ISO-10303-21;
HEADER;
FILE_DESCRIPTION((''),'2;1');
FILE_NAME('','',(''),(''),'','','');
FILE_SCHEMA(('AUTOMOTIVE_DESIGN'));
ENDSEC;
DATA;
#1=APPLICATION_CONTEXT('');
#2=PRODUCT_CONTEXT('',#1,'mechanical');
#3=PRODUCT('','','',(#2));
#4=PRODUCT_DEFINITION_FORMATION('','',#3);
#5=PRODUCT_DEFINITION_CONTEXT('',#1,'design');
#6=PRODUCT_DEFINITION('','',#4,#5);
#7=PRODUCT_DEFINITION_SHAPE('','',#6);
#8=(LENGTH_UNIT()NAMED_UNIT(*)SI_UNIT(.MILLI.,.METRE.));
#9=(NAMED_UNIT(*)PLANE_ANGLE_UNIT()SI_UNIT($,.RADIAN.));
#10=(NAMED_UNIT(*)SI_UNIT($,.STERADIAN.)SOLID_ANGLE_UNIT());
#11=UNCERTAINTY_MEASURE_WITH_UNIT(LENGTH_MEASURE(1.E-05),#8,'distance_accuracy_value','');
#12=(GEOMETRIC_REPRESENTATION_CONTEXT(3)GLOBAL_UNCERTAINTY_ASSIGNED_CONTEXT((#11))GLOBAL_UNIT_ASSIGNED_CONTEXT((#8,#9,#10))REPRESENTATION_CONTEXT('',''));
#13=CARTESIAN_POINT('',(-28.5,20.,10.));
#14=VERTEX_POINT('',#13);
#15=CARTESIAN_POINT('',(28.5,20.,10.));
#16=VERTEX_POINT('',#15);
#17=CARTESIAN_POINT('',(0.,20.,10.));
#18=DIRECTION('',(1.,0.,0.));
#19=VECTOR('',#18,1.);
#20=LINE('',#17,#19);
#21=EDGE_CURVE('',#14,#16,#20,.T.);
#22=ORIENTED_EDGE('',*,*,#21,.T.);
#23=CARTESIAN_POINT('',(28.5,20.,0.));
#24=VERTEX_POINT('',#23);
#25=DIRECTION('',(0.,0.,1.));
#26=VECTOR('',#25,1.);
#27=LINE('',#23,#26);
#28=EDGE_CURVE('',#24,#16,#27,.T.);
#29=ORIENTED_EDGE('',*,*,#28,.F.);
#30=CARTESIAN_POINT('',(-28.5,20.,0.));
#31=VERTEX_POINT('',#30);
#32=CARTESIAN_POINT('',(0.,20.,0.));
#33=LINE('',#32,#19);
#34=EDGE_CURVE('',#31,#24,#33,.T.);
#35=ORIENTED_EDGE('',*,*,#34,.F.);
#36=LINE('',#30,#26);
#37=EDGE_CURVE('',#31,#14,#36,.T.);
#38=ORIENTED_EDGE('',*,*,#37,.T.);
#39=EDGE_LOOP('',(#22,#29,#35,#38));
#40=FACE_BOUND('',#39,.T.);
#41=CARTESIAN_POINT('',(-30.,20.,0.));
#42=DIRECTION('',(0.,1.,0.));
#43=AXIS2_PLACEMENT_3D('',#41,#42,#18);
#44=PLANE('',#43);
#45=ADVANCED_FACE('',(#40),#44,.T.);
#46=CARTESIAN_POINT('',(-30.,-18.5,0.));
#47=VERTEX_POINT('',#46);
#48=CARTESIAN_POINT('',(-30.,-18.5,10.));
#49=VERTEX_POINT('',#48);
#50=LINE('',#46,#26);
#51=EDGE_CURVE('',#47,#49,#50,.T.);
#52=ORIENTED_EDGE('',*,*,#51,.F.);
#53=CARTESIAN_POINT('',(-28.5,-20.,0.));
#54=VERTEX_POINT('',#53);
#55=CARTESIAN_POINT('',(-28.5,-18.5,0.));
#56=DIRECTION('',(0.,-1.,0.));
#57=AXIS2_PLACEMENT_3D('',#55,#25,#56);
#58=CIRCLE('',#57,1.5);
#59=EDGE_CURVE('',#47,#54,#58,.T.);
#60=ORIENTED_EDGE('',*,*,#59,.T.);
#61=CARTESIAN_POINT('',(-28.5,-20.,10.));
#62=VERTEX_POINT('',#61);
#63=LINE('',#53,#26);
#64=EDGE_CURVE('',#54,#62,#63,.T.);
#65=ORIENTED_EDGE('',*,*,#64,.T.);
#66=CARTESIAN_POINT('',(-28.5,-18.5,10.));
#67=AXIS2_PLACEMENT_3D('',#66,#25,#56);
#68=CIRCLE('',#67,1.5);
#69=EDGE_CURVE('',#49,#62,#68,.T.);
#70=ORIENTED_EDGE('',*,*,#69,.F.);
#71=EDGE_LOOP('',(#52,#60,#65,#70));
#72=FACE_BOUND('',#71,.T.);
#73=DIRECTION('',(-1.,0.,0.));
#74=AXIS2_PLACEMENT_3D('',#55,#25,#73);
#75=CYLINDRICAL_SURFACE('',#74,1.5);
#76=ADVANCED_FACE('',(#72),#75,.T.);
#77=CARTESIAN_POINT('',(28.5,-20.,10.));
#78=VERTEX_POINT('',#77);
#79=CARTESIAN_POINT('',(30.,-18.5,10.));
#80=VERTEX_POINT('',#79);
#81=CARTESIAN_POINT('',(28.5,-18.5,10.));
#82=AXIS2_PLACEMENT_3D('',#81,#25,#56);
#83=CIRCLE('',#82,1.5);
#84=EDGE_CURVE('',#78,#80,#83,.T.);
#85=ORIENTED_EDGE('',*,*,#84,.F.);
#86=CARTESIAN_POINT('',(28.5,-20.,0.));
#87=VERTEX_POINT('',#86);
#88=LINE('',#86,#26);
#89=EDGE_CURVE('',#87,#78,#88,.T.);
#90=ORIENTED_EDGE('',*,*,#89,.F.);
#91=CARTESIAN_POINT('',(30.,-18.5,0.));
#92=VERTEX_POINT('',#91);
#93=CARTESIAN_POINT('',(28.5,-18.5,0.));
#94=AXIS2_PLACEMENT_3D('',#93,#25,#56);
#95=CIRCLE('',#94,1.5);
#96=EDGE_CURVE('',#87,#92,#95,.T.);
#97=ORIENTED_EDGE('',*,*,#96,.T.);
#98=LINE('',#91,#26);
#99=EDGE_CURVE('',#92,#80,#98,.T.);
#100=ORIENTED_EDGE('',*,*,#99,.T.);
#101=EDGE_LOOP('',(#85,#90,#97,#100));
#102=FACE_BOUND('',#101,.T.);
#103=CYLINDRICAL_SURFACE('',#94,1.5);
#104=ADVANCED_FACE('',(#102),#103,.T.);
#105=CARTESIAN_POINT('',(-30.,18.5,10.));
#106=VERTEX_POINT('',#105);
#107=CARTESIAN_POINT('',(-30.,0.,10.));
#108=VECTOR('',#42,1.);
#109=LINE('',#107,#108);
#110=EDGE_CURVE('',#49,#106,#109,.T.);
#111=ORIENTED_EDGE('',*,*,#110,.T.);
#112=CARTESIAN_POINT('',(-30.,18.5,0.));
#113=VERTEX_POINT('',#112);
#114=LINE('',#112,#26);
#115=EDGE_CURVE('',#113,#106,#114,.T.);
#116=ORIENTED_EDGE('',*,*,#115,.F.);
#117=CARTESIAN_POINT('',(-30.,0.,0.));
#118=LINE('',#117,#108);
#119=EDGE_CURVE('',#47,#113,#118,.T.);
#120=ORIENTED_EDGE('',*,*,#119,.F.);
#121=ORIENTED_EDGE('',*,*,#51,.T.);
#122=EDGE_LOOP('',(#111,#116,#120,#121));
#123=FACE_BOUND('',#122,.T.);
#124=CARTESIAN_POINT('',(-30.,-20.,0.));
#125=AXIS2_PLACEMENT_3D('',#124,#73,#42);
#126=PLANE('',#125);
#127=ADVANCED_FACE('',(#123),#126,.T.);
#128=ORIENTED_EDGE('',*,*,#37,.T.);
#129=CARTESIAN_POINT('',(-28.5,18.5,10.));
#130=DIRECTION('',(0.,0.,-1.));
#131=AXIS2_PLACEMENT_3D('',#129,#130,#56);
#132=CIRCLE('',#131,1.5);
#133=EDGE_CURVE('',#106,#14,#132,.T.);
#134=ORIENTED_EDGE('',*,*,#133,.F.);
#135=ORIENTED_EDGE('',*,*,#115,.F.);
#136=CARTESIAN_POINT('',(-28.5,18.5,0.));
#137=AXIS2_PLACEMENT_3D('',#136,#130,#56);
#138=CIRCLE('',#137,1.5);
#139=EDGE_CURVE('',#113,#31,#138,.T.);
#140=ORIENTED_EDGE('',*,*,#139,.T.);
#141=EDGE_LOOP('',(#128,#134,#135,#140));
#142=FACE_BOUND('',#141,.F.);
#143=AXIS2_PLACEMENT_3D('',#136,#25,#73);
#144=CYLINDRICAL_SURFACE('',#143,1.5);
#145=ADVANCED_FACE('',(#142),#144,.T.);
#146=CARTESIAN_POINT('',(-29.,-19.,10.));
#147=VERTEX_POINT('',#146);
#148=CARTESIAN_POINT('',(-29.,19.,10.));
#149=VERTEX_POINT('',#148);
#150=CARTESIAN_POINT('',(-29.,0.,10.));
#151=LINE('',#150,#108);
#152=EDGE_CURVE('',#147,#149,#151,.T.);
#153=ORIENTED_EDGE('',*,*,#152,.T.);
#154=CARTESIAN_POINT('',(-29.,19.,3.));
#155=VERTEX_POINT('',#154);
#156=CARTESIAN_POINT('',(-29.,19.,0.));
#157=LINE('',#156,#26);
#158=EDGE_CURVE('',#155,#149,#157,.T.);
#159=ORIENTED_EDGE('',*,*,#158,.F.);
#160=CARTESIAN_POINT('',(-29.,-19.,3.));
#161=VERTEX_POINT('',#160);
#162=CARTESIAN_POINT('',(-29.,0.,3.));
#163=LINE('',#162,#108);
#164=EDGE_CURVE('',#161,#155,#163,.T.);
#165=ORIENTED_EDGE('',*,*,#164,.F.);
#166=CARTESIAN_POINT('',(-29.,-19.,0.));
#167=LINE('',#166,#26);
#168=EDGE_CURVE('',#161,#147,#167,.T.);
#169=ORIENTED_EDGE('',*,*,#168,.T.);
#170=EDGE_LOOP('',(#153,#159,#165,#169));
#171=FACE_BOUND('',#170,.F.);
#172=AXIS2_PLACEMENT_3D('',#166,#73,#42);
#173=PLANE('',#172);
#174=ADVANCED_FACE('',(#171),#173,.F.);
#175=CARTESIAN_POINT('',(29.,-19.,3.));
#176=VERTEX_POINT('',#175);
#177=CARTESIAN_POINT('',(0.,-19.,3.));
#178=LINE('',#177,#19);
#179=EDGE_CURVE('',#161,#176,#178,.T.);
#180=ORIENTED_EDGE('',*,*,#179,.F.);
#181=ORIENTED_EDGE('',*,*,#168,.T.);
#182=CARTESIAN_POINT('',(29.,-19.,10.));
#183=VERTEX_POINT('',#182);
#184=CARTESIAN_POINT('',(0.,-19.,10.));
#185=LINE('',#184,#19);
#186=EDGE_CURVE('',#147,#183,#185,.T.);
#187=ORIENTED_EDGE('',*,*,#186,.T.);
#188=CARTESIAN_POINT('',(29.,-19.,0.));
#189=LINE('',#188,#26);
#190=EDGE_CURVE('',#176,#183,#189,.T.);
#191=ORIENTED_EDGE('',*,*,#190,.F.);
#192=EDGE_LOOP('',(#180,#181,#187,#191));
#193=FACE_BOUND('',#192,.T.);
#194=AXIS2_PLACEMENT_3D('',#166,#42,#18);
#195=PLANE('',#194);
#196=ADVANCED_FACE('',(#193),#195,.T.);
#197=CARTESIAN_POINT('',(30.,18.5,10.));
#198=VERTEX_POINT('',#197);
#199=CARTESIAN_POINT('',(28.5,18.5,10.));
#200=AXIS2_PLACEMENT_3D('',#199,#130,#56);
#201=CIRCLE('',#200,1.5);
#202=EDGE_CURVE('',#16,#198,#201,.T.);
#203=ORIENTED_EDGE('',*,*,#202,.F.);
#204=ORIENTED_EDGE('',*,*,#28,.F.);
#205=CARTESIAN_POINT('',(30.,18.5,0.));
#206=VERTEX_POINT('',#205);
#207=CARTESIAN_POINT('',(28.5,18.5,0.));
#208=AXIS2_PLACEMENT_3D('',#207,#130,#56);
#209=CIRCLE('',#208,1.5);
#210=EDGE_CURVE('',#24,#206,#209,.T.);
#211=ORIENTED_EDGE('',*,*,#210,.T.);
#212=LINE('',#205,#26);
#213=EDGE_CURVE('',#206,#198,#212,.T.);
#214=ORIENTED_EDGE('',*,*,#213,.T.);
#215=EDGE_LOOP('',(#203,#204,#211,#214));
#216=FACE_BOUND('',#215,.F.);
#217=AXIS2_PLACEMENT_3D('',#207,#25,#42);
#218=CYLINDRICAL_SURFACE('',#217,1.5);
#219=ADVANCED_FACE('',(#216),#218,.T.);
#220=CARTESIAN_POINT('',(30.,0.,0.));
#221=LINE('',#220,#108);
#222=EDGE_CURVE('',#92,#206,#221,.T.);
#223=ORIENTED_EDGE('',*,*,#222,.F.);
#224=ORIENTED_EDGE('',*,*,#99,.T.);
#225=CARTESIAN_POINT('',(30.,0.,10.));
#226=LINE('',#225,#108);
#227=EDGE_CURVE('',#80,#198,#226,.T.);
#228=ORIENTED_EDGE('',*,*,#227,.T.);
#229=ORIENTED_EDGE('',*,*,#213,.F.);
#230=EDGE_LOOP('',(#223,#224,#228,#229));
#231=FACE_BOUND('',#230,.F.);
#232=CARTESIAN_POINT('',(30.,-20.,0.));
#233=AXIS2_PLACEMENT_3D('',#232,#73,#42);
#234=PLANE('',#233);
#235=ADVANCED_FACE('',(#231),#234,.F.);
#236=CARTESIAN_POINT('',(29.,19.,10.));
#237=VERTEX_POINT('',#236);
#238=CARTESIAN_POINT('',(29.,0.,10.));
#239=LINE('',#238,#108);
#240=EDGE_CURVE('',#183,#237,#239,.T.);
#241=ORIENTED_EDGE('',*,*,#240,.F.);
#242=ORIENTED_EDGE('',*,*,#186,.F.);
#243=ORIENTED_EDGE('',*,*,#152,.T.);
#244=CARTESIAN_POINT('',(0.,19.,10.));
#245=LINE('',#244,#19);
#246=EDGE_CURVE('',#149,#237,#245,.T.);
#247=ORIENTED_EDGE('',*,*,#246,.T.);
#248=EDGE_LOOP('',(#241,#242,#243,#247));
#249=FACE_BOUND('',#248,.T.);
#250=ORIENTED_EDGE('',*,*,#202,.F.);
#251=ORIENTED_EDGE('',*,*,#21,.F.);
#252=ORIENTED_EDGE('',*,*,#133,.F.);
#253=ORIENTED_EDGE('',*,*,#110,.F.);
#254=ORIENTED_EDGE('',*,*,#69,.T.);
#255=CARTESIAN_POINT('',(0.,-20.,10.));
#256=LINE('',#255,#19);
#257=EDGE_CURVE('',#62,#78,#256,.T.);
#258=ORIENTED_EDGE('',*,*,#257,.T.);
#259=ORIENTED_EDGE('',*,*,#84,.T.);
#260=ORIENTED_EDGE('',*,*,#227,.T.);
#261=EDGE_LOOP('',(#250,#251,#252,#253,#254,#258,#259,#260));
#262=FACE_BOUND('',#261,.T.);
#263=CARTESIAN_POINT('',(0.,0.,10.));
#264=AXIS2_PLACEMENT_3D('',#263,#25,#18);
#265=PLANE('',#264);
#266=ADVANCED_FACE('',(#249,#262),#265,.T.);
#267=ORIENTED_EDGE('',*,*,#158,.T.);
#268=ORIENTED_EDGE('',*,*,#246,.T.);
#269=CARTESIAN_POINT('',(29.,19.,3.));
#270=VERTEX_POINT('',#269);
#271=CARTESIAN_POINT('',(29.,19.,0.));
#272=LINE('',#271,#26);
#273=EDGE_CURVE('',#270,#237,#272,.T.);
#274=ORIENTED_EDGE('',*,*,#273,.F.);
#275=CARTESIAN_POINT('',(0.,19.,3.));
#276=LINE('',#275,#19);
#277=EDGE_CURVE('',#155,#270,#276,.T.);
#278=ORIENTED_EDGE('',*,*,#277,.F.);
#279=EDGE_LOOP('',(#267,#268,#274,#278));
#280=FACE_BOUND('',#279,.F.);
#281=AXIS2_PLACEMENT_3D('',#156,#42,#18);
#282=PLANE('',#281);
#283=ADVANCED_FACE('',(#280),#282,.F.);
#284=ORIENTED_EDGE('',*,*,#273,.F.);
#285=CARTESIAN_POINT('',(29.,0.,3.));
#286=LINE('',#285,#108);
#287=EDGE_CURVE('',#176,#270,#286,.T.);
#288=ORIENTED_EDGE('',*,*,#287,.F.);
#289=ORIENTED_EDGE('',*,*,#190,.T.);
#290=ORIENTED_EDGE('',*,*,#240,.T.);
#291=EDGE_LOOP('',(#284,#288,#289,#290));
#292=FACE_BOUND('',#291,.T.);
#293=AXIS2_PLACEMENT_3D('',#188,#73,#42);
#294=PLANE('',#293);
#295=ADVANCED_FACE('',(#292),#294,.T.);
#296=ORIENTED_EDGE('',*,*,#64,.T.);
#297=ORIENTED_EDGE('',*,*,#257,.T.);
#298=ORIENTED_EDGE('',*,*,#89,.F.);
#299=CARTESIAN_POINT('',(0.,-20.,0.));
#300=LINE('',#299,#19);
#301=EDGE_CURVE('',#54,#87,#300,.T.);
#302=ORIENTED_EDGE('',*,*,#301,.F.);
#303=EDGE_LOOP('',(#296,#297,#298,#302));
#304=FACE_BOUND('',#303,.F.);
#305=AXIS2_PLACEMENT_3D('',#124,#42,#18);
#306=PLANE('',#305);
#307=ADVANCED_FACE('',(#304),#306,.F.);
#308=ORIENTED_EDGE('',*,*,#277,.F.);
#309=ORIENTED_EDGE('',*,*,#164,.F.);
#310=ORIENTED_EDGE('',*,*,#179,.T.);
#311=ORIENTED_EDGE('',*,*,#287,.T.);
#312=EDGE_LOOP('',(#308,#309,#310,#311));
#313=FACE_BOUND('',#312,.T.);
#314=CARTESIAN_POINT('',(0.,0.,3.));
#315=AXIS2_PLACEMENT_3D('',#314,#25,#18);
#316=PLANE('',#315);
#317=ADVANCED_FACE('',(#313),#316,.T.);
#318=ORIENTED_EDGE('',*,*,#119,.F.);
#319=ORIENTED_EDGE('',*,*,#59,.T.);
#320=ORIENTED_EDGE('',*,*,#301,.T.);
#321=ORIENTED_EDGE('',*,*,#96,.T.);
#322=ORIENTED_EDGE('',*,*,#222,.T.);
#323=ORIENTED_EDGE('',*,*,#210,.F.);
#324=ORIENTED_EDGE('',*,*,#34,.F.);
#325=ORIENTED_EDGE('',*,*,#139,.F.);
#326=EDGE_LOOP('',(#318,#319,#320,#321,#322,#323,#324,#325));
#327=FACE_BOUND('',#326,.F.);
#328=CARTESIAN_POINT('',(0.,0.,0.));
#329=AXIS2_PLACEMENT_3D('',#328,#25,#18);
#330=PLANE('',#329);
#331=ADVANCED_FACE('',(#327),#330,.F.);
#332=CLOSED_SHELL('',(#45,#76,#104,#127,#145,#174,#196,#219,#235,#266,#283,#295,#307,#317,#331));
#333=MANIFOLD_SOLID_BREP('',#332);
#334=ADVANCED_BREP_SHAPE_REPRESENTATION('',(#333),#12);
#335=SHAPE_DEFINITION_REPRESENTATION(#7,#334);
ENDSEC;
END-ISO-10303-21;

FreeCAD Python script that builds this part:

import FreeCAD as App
import Part
import Sketcher


def edges_at(feature, points):
    """Names of the edges that pass closest to the given points."""
    edges = feature.Shape.Edges
    near = lambda p: min(range(len(edges)), key=lambda i: edges[i].distToShape(Part.Vertex(*p))[0])
    return sorted({f"Edge{near(p) + 1}" for p in points})

doc = App.newDocument("Part")
params = doc.addObject("Spreadsheet::Sheet", "Params")
for row, (alias, value) in enumerate([
    ("sketch1_width", "58 mm"),
    ("sketch1_height", "38 mm"),
    ("pad1_length", "3 mm"),
    ("sketch2_width", "60 mm"),
    ("sketch2_width2", "58 mm"),
    ("sketch2_height", "40 mm"),
    ("sketch2_height2", "38 mm"),
    ("pad2_length", "10 mm"),
    ("fillet_radius", "1.5 mm"),
], start=1):
    params.set(f"A{row}", alias)
    params.set(f"B{row}", "=" + value)
    params.setAlias(f"B{row}", alias)

body = doc.addObject("PartDesign::Body", "Body")

# Sketch on XY plane
sketch1 = body.newObject("Sketcher::SketchObject", "Sketch")
sketch1.AttachmentSupport = (doc.getObject("XY_Plane"), [""])
sketch1.MapMode = "FlatFace"
sketch1.addGeometry([
    Part.LineSegment(App.Vector(-29, 19, 0), App.Vector(-29, -19, 0)),
    Part.LineSegment(App.Vector(-29, -19, 0), App.Vector(29, -19, 0)),
    Part.LineSegment(App.Vector(29, -19, 0), App.Vector(29, 19, 0)),
    Part.LineSegment(App.Vector(29, 19, 0), App.Vector(-29, 19, 0)),
], False)
sketch1.addConstraint([
    Sketcher.Constraint("Coincident", 0, 2, 1, 1),
    Sketcher.Constraint("Coincident", 1, 2, 2, 1),
    Sketcher.Constraint("Coincident", 2, 2, 3, 1),
    Sketcher.Constraint("Coincident", 3, 2, 0, 1),
    Sketcher.Constraint("Vertical", 0),
    Sketcher.Constraint("Horizontal", 1),
    Sketcher.Constraint("Vertical", 2),
    Sketcher.Constraint("Horizontal", 3),
    Sketcher.Constraint("Symmetric", 0, 2, 2, 2, -1, 1),
    Sketcher.Constraint("DistanceX", 1, 1, 1, 2, 58.0),
    Sketcher.Constraint("DistanceY", 0, 2, 0, 1, 38.0),
])
sketch1.setExpression("Constraints[9]", "Params.sketch1_width")
sketch1.setExpression("Constraints[10]", "Params.sketch1_height")
pad1 = body.newObject("PartDesign::Pad", "Pad")
pad1.Profile = sketch1
pad1.setExpression("Length", "Params.pad1_length")

# Sketch on XY plane
sketch2 = body.newObject("Sketcher::SketchObject", "Sketch001")
sketch2.AttachmentSupport = (doc.getObject("XY_Plane"), [""])
sketch2.MapMode = "FlatFace"
sketch2.addGeometry([
    Part.LineSegment(App.Vector(-30, 20, 0), App.Vector(-30, -20, 0)),  # 0
    Part.LineSegment(App.Vector(-30, -20, 0), App.Vector(30, -20, 0)),  # 1
    Part.LineSegment(App.Vector(30, -20, 0), App.Vector(30, 20, 0)),  # 2
    Part.LineSegment(App.Vector(30, 20, 0), App.Vector(-30, 20, 0)),  # 3
    Part.LineSegment(App.Vector(29, -19, 0), App.Vector(-29, -19, 0)),  # 4
    Part.LineSegment(App.Vector(-29, -19, 0), App.Vector(-29, 19, 0)),  # 5
    Part.LineSegment(App.Vector(-29, 19, 0), App.Vector(29, 19, 0)),  # 6
    Part.LineSegment(App.Vector(29, 19, 0), App.Vector(29, -19, 0)),  # 7
], False)
sketch2.addConstraint([
    Sketcher.Constraint("Coincident", 0, 2, 1, 1),
    Sketcher.Constraint("Coincident", 1, 2, 2, 1),
    Sketcher.Constraint("Coincident", 2, 2, 3, 1),
    Sketcher.Constraint("Coincident", 3, 2, 0, 1),
    Sketcher.Constraint("Coincident", 4, 2, 5, 1),
    Sketcher.Constraint("Coincident", 5, 2, 6, 1),
    Sketcher.Constraint("Coincident", 6, 2, 7, 1),
    Sketcher.Constraint("Coincident", 7, 2, 4, 1),
    Sketcher.Constraint("Vertical", 0),
    Sketcher.Constraint("Horizontal", 1),
    Sketcher.Constraint("Vertical", 2),
    Sketcher.Constraint("Horizontal", 3),
    Sketcher.Constraint("Horizontal", 4),
    Sketcher.Constraint("Vertical", 5),
    Sketcher.Constraint("Horizontal", 6),
    Sketcher.Constraint("Vertical", 7),
    Sketcher.Constraint("Symmetric", 0, 2, 2, 2, -1, 1),
    Sketcher.Constraint("Symmetric", 4, 2, 6, 2, -1, 1),
    Sketcher.Constraint("DistanceX", 1, 1, 1, 2, 60.0),
    Sketcher.Constraint("DistanceX", 4, 2, 4, 1, 58.0),
    Sketcher.Constraint("DistanceY", 0, 2, 0, 1, 40.0),
    Sketcher.Constraint("DistanceY", 5, 1, 5, 2, 38.0),
])
sketch2.setExpression("Constraints[18]", "Params.sketch2_width")
sketch2.setExpression("Constraints[19]", "Params.sketch2_width2")
sketch2.setExpression("Constraints[20]", "Params.sketch2_height")
sketch2.setExpression("Constraints[21]", "Params.sketch2_height2")
pad2 = body.newObject("PartDesign::Pad", "Pad001")
pad2.Profile = sketch2
pad2.setExpression("Length", "Params.pad2_length")
doc.recompute()

fillet = body.newObject("PartDesign::Fillet", "Fillet")
fillet.Base = (pad2, edges_at(pad2, [
    (-30, -20, 5),
    (30, -20, 5),
    (30, 20, 5),
    (-30, 20, 5),
]))
fillet.setExpression("Radius", "Params.fillet_radius")

doc.recompute()
